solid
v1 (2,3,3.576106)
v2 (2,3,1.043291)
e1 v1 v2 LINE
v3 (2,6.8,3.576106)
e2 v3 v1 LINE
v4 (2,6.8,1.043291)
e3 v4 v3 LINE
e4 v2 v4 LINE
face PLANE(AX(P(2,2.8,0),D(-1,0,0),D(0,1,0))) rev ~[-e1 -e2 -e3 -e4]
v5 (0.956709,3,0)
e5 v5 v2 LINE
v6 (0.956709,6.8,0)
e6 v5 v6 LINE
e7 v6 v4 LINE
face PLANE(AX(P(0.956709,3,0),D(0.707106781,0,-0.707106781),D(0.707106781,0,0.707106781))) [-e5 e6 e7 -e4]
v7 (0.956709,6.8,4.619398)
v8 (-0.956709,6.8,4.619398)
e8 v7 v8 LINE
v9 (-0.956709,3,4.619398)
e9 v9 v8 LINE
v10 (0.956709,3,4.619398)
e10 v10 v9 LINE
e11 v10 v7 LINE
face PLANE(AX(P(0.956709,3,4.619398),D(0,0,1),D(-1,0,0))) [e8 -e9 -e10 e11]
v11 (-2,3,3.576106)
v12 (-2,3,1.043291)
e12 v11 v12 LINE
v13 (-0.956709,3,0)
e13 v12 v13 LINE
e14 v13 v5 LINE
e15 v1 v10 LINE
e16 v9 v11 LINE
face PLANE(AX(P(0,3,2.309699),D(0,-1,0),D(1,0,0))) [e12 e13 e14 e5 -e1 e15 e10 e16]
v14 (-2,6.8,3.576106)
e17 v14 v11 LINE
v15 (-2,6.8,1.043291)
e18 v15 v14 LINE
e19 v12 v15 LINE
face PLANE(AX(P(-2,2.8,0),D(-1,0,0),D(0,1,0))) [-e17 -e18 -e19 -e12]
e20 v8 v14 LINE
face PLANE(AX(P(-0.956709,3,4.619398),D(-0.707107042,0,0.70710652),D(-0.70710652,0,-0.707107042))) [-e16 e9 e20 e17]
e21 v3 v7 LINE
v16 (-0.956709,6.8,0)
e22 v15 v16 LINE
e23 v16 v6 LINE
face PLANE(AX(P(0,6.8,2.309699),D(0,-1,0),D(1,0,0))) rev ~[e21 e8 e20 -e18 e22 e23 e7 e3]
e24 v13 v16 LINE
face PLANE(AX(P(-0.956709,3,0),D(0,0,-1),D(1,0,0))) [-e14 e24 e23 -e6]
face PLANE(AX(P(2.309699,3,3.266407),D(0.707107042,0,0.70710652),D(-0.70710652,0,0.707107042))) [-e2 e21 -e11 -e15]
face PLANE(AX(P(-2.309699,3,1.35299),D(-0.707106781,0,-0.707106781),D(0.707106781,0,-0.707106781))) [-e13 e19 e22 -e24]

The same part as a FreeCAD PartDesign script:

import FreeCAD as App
import Part
import Sketcher
from FreeCAD import Vector
Q = App.Units.Quantity

doc = App.newDocument("Part")
params = doc.addObject("Spreadsheet::Sheet", "Params")
for row, (alias, value) in enumerate([
    ("sketch1_width", "4 mm"),
    ("pad1_length", "10 mm"),
    ("pad2_length", "3.8 mm"),
], start=1):
    params.set(f"A{row}", alias)
    params.set(f"B{row}", "=" + value)
    params.setAlias(f"B{row}", alias)

body = doc.addObject("PartDesign::Body", "Body")

sketch1 = doc.addObject("Sketcher::SketchObject", "Sketch")
body.addObject(sketch1)
sketch1.AttachmentSupport = (doc.XY_Plane, [""])
sketch1.MapMode = "FlatFace"
sketch1.addGeometry([
    Part.LineSegment(Vector(-2, 6.8, 0), Vector(-2, 2.8, 0)),
    Part.LineSegment(Vector(-2, 2.8, 0), Vector(2, 2.8, 0)),
    Part.LineSegment(Vector(2, 2.8, 0), Vector(2, 6.8, 0)),
    Part.LineSegment(Vector(2, 6.8, 0), Vector(-2, 6.8, 0)),
], False)
sketch1.addConstraint([
    Sketcher.Constraint("Coincident", 0, 2, 1, 1),
    Sketcher.Constraint("Coincident", 1, 2, 2, 1),
    Sketcher.Constraint("Coincident", 2, 2, 3, 1),
    Sketcher.Constraint("Coincident", 3, 2, 0, 1),
    Sketcher.Constraint("Vertical", 0),
    Sketcher.Constraint("Horizontal", 1),
    Sketcher.Constraint("Vertical", 2),
    Sketcher.Constraint("Horizontal", 3),
    Sketcher.Constraint("Equal", 3, 0),
    Sketcher.Constraint("DistanceX", 1, 1, 1, 2, Q("4 mm")),
    Sketcher.Constraint("DistanceX", 0, 2, -1, 1, Q("2 mm")),
    Sketcher.Constraint("DistanceY", -1, 1, 0, 2, Q("2.8 mm")),
])
sketch1.setExpression("Constraints[9]", "Params.sketch1_width")
pad1 = doc.addObject("PartDesign::Pad", "Pad")
body.addObject(pad1)
pad1.Profile = sketch1
pad1.setExpression("Length", "Params.pad1_length")
body2 = doc.addObject("PartDesign::Body", "Body001")

sketch2 = doc.addObject("Sketcher::SketchObject", "Sketch001")
body2.addObject(sketch2)
sketch2.AttachmentSupport = (doc.getObject("XZ_Plane001"), [""])
sketch2.MapMode = "FlatFace"
sketch2.addGeometry([
    Part.LineSegment(Vector(2.3, 1.4, 0), Vector(2.3, 3.3, 0)),
    Part.LineSegment(Vector(2.3, 3.3, 0), Vector(1, 4.6, 0)),
    Part.LineSegment(Vector(1, 4.6, 0), Vector(-1, 4.6, 0)),
    Part.LineSegment(Vector(-1, 4.6, 0), Vector(-2.3, 3.3, 0)),
    Part.LineSegment(Vector(-2.3, 3.3, 0), Vector(-2.3, 1.4, 0)),
    Part.LineSegment(Vector(-2.3, 1.4, 0), Vector(-1, 0, 0)),
    Part.LineSegment(Vector(-1, 0, 0), Vector(1, 0, 0)),
    Part.LineSegment(Vector(1, 0, 0), Vector(2.3, 1.4, 0)),
], False)
sketch2.addConstraint([
    Sketcher.Constraint("Coincident", 0, 2, 1, 1),
    Sketcher.Constraint("Coincident", 1, 2, 2, 1),
    Sketcher.Constraint("Coincident", 2, 2, 3, 1),
    Sketcher.Constraint("Coincident", 3, 2, 4, 1),
    Sketcher.Constraint("Coincident", 4, 2, 5, 1),
    Sketcher.Constraint("Coincident", 5, 2, 6, 1),
    Sketcher.Constraint("Coincident", 6, 2, 7, 1),
    Sketcher.Constraint("Coincident", 7, 2, 0, 1),
    Sketcher.Constraint("Vertical", 0),
    Sketcher.Constraint("Horizontal", 2),
    Sketcher.Constraint("Vertical", 4),
    Sketcher.Constraint("Horizontal", 6),
    Sketcher.Constraint("Symmetric", 5, 2, 6, 2, -1, 1),
    Sketcher.Constraint("Symmetric", 0, 2, 3, 2, -2),
    Sketcher.Constraint("Perpendicular", 1, 3),
    Sketcher.Constraint("Perpendicular", 3, 5),
    Sketcher.Constraint("Perpendicular", 5, 7),
    Sketcher.Constraint("Horizontal", 4, 2, 7, 2),
    Sketcher.Constraint("Vertical", 2, 2, 5, 2),
    Sketcher.Constraint("Equal", 6, 0),
    Sketcher.Constraint("DistanceX", 2, 2, 2, 1, Q("1.913418 mm")),
    Sketcher.Constraint("DistanceX", -1, 1, 0, 2, Q("2.309699 mm")),
])
pad2 = doc.addObject("PartDesign::Pad", "Pad001")
body2.addObject(pad2)
pad2.Profile = sketch2
pad2.setExpression("Length", "Params.pad2_length")
pad2.Reversed = True
body3 = doc.addObject("PartDesign::Body", "Body002")
doc.recompute()

body2.Placement = App.Placement(Vector(0, 3, 0), App.Rotation(Vector(0, 0, 1), 0))
boolean = doc.addObject("PartDesign::Boolean", "Boolean")
body3.addObject(boolean)
boolean.Type = "Fuse"
boolean.addObjects([body2])
doc.recompute()

boolean2 = doc.addObject("PartDesign::Boolean", "Boolean001")
body3.addObject(boolean2)
boolean2.Type = "Common"
boolean2.addObjects([body])

doc.recompute()
